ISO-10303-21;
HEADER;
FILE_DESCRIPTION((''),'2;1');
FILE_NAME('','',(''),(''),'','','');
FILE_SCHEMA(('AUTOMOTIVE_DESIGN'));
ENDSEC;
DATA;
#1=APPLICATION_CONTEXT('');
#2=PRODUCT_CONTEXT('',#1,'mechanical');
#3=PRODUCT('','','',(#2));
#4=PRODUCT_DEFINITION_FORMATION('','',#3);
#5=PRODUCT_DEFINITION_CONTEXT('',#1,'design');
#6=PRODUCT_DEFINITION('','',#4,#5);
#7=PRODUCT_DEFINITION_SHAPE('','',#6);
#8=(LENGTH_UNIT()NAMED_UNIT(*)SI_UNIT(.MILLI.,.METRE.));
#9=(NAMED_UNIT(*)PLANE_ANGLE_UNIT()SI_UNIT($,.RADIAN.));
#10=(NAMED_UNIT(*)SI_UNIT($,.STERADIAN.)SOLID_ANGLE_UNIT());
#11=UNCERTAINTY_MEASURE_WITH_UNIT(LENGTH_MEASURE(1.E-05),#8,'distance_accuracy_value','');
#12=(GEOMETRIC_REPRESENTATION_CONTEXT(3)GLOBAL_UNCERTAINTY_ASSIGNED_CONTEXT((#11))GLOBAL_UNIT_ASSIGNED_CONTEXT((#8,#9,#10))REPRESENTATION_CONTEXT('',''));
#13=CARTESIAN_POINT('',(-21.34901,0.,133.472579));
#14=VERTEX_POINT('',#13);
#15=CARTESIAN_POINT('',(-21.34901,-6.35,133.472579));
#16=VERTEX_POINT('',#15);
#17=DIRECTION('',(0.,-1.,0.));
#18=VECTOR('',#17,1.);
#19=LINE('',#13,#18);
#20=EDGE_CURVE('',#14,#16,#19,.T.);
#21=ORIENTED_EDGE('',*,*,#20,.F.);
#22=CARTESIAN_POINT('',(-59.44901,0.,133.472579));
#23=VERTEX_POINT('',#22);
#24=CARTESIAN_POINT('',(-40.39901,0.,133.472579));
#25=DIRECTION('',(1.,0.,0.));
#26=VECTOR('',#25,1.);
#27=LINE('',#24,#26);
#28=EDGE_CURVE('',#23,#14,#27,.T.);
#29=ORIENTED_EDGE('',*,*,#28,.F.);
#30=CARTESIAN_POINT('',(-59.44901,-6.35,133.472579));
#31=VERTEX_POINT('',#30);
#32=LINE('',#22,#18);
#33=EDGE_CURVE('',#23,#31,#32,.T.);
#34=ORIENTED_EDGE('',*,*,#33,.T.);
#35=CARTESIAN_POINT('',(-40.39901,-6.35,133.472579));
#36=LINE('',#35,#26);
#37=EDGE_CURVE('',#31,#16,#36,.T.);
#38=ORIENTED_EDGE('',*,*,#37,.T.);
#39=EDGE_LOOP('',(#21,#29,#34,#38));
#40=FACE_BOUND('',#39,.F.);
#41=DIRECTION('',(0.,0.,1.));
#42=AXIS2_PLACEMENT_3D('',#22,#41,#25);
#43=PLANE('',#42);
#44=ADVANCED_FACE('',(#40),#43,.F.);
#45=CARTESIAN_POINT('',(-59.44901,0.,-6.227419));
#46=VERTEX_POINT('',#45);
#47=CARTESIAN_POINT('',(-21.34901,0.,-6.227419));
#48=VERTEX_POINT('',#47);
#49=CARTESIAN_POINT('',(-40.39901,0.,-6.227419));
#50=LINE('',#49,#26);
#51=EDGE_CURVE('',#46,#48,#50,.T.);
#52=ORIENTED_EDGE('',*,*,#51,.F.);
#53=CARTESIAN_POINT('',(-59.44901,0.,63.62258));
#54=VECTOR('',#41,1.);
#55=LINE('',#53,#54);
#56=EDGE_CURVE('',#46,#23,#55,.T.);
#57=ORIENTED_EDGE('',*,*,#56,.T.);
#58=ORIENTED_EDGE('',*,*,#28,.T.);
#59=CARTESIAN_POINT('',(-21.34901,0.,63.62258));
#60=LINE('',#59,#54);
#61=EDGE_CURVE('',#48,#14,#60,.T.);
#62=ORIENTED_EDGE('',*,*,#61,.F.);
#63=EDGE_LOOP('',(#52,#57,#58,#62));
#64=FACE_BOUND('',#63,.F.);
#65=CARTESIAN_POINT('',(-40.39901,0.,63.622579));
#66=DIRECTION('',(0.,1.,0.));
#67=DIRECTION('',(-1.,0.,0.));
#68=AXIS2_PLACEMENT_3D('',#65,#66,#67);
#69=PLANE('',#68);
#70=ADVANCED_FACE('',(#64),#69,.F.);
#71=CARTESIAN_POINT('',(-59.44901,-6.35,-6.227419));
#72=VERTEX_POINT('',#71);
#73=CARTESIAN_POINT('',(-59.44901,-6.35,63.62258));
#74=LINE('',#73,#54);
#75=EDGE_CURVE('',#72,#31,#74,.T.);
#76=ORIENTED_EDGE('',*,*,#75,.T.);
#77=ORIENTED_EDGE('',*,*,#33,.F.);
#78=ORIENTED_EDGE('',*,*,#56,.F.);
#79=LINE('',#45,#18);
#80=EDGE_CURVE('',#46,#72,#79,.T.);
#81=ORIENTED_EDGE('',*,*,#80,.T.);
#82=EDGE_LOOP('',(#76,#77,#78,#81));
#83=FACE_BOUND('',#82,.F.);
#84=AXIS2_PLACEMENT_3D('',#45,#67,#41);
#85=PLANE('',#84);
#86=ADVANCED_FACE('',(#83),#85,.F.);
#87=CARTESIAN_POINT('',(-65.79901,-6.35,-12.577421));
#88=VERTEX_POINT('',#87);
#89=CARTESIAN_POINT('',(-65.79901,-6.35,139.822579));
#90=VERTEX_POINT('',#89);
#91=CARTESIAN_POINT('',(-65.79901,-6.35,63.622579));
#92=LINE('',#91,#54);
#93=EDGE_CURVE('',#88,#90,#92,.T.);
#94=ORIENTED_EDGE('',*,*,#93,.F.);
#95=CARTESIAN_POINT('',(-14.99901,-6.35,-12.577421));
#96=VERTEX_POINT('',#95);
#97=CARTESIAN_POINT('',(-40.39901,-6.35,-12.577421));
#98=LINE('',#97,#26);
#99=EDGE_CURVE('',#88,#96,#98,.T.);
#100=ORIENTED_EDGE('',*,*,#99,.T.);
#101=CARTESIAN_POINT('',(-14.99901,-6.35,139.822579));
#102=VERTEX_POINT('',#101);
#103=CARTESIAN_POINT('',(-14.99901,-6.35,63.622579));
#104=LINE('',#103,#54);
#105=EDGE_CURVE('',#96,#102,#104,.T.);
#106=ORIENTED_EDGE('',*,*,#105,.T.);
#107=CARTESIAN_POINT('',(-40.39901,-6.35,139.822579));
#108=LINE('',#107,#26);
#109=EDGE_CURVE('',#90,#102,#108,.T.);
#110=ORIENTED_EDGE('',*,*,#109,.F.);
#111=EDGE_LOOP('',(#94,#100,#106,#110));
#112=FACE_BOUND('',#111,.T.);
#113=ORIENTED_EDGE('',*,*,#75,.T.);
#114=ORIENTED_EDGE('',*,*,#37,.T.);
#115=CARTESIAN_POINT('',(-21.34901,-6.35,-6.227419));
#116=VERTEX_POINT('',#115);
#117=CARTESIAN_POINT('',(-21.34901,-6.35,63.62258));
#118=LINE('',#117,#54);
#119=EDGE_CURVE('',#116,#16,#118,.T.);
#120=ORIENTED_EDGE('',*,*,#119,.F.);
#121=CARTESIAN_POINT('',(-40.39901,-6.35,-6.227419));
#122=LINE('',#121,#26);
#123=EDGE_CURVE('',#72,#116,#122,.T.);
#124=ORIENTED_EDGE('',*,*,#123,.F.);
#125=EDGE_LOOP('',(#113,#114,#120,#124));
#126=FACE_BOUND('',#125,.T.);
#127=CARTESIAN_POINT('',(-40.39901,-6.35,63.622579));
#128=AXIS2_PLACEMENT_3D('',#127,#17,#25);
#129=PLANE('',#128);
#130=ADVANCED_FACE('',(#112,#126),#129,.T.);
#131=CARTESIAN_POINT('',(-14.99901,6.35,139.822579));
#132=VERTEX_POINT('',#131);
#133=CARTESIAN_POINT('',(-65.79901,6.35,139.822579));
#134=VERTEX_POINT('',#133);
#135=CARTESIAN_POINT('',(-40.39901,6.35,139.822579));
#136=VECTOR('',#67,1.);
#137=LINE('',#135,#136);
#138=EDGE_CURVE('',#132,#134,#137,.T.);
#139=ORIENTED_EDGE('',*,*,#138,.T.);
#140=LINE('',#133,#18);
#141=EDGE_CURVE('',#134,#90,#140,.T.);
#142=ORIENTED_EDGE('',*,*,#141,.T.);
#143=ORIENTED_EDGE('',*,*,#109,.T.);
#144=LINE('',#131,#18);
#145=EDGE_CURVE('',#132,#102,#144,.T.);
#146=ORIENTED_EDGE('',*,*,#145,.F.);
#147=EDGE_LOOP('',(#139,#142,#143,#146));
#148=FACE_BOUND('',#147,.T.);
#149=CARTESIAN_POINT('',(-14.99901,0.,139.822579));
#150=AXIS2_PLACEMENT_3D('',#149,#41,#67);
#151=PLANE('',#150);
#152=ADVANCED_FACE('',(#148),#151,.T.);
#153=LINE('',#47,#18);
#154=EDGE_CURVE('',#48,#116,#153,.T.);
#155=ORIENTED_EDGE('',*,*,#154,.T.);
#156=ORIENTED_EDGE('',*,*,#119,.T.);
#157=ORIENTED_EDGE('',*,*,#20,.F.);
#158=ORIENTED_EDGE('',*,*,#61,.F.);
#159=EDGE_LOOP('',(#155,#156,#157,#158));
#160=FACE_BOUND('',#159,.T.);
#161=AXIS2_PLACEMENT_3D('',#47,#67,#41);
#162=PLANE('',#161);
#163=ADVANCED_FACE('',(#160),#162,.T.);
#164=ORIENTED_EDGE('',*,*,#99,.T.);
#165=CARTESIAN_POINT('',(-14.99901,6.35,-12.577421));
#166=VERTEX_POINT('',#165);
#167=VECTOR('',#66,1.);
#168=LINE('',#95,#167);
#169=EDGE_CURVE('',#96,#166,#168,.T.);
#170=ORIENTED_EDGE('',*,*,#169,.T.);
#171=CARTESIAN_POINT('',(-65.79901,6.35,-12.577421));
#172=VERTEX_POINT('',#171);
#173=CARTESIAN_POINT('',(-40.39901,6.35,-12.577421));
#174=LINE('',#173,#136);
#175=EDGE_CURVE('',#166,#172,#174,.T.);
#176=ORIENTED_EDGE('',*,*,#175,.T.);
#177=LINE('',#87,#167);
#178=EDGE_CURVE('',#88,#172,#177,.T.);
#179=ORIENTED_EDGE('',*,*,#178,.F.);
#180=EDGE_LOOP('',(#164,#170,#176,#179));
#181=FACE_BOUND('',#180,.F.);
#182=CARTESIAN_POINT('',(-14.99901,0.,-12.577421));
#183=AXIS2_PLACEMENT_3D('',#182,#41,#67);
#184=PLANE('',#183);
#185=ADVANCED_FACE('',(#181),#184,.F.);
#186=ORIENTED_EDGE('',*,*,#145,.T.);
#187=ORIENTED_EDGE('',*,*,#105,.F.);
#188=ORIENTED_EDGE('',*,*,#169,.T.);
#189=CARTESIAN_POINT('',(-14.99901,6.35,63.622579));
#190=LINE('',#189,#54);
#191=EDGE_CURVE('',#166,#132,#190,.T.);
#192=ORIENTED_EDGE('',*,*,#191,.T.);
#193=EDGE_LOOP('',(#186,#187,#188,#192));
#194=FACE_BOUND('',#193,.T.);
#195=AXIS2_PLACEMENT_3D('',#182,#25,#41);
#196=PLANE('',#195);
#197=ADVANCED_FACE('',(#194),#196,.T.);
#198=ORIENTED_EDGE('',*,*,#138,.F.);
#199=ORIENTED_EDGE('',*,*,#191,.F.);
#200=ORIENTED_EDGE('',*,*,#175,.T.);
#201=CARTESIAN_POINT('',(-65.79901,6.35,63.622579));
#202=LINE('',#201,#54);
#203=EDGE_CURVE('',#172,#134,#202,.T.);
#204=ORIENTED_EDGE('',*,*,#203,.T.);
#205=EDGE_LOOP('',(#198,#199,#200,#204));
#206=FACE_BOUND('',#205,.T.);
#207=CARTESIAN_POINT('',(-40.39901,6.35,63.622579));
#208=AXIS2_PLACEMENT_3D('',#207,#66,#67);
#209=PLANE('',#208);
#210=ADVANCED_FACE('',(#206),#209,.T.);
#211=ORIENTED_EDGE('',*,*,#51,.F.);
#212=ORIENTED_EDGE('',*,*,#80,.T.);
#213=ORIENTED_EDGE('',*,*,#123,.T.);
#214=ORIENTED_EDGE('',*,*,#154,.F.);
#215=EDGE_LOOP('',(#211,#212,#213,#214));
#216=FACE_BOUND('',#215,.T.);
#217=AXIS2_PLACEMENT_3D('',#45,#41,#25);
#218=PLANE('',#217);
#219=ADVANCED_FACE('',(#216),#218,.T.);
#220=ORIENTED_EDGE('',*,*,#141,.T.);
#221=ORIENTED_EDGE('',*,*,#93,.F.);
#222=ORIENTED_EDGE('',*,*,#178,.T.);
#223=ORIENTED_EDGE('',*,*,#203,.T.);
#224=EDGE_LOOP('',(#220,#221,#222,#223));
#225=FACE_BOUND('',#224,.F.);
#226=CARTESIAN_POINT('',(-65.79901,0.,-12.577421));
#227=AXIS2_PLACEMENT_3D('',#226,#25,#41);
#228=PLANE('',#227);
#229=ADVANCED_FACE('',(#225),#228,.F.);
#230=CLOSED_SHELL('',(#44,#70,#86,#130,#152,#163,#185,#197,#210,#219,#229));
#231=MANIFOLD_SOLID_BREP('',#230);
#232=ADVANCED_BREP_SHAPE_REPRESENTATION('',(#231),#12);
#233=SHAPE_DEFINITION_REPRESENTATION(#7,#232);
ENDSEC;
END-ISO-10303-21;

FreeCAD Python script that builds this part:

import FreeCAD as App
import Part
import Sketcher
Q = App.Units.Quantity


def add_polygon(sketch, points):
    """Adds a closed chain of lines whose ends are joined by coincident constraints."""
    first, n = sketch.GeometryCount, len(points)
    for a, b in zip(points, points[1:] + points[:1]):
        sketch.addGeometry(Part.LineSegment(App.Vector(*a, 0), App.Vector(*b, 0)), False)
    for i in range(n):
        sketch.addConstraint(Sketcher.Constraint("Coincident", first + i, 2, first + (i + 1) % n, 1))

doc = App.newDocument("Part")
body = doc.addObject("PartDesign::Body", "Body")

sketch1 = doc.addObject("Sketcher::SketchObject", "Sketch")
body.addObject(sketch1)
sketch1.AttachmentSupport = (doc.XZ_Plane, [""])
sketch1.MapMode = "FlatFace"
add_polygon(sketch1, [(-65.79901, 139.822579), (-65.79901, -12.577421), (-14.99901, -12.577421), (-14.99901, 139.822579)])
add_polygon(sketch1, [(-21.34901, -6.227419), (-59.44901, -6.227419), (-59.44901, 133.472579), (-21.34901, 133.472579)])
sketch1.addConstraint(Sketcher.Constraint("Vertical", 0))
sketch1.addConstraint(Sketcher.Constraint("Horizontal", 1))
sketch1.addConstraint(Sketcher.Constraint("Vertical", 2))
sketch1.addConstraint(Sketcher.Constraint("Horizontal", 3))
sketch1.addConstraint(Sketcher.Constraint("Horizontal", 4))
sketch1.addConstraint(Sketcher.Constraint("Vertical", 5))
sketch1.addConstraint(Sketcher.Constraint("Horizontal", 6))
sketch1.addConstraint(Sketcher.Constraint("Vertical", 7))
sketch1.addConstraint(Sketcher.Constraint("DistanceX", 1, 1, 1, 2, Q("2 in")))
sketch1.addConstraint(Sketcher.Constraint("DistanceY", 0, 2, 0, 1, Q("6 in")))
sketch1.addConstraint(Sketcher.Constraint("DistanceX", 4, 2, 4, 1, Q("1.5 in")))
sketch1.addConstraint(Sketcher.Constraint("DistanceY", 5, 1, 5, 2, Q("5.5 in")))
sketch1.addConstraint(Sketcher.Constraint("DistanceX", 0, 2, 4, 2, Q("0.25 in")))
sketch1.addConstraint(Sketcher.Constraint("DistanceY", 0, 2, 4, 2, Q("0.2500001 in")))
sketch1.addConstraint(Sketcher.Constraint("DistanceX", 0, 2, -1, 1, 65.79901))
sketch1.addConstraint(Sketcher.Constraint("DistanceY", 0, 2, -1, 1, 12.577421))
pad1 = doc.addObject("PartDesign::Pad", "Pad")
body.addObject(pad1)
pad1.Profile = sketch1
pad1.Length = Q("0.25 in")

sketch2 = doc.addObject("Sketcher::SketchObject", "Sketch001")
body.addObject(sketch2)
sketch2.AttachmentSupport = (doc.XZ_Plane, [""])
sketch2.MapMode = "FlatFace"
add_polygon(sketch2, [(-14.99901, 139.822579), (-14.99901, -12.577421), (-65.79901, -12.577421), (-65.79901, 139.822579)])
sketch2.addConstraint(Sketcher.Constraint("Vertical", 0))
sketch2.addConstraint(Sketcher.Constraint("Horizontal", 1))
sketch2.addConstraint(Sketcher.Constraint("Vertical", 2))
sketch2.addConstraint(Sketcher.Constraint("Horizontal", 3))
sketch2.addConstraint(Sketcher.Constraint("DistanceX", 1, 2, 1, 1, Q("2 in")))
sketch2.addConstraint(Sketcher.Constraint("DistanceY", 0, 2, 0, 1, Q("6 in")))
sketch2.addConstraint(Sketcher.Constraint("DistanceX", 0, 2, -1, 1, 14.99901))
sketch2.addConstraint(Sketcher.Constraint("DistanceY", 0, 2, -1, 1, 12.577421))
pad2 = doc.addObject("PartDesign::Pad", "Pad001")
body.addObject(pad2)
pad2.Profile = sketch2
pad2.Length = Q("0.25 in")
pad2.Reversed = True

doc.recompute()
